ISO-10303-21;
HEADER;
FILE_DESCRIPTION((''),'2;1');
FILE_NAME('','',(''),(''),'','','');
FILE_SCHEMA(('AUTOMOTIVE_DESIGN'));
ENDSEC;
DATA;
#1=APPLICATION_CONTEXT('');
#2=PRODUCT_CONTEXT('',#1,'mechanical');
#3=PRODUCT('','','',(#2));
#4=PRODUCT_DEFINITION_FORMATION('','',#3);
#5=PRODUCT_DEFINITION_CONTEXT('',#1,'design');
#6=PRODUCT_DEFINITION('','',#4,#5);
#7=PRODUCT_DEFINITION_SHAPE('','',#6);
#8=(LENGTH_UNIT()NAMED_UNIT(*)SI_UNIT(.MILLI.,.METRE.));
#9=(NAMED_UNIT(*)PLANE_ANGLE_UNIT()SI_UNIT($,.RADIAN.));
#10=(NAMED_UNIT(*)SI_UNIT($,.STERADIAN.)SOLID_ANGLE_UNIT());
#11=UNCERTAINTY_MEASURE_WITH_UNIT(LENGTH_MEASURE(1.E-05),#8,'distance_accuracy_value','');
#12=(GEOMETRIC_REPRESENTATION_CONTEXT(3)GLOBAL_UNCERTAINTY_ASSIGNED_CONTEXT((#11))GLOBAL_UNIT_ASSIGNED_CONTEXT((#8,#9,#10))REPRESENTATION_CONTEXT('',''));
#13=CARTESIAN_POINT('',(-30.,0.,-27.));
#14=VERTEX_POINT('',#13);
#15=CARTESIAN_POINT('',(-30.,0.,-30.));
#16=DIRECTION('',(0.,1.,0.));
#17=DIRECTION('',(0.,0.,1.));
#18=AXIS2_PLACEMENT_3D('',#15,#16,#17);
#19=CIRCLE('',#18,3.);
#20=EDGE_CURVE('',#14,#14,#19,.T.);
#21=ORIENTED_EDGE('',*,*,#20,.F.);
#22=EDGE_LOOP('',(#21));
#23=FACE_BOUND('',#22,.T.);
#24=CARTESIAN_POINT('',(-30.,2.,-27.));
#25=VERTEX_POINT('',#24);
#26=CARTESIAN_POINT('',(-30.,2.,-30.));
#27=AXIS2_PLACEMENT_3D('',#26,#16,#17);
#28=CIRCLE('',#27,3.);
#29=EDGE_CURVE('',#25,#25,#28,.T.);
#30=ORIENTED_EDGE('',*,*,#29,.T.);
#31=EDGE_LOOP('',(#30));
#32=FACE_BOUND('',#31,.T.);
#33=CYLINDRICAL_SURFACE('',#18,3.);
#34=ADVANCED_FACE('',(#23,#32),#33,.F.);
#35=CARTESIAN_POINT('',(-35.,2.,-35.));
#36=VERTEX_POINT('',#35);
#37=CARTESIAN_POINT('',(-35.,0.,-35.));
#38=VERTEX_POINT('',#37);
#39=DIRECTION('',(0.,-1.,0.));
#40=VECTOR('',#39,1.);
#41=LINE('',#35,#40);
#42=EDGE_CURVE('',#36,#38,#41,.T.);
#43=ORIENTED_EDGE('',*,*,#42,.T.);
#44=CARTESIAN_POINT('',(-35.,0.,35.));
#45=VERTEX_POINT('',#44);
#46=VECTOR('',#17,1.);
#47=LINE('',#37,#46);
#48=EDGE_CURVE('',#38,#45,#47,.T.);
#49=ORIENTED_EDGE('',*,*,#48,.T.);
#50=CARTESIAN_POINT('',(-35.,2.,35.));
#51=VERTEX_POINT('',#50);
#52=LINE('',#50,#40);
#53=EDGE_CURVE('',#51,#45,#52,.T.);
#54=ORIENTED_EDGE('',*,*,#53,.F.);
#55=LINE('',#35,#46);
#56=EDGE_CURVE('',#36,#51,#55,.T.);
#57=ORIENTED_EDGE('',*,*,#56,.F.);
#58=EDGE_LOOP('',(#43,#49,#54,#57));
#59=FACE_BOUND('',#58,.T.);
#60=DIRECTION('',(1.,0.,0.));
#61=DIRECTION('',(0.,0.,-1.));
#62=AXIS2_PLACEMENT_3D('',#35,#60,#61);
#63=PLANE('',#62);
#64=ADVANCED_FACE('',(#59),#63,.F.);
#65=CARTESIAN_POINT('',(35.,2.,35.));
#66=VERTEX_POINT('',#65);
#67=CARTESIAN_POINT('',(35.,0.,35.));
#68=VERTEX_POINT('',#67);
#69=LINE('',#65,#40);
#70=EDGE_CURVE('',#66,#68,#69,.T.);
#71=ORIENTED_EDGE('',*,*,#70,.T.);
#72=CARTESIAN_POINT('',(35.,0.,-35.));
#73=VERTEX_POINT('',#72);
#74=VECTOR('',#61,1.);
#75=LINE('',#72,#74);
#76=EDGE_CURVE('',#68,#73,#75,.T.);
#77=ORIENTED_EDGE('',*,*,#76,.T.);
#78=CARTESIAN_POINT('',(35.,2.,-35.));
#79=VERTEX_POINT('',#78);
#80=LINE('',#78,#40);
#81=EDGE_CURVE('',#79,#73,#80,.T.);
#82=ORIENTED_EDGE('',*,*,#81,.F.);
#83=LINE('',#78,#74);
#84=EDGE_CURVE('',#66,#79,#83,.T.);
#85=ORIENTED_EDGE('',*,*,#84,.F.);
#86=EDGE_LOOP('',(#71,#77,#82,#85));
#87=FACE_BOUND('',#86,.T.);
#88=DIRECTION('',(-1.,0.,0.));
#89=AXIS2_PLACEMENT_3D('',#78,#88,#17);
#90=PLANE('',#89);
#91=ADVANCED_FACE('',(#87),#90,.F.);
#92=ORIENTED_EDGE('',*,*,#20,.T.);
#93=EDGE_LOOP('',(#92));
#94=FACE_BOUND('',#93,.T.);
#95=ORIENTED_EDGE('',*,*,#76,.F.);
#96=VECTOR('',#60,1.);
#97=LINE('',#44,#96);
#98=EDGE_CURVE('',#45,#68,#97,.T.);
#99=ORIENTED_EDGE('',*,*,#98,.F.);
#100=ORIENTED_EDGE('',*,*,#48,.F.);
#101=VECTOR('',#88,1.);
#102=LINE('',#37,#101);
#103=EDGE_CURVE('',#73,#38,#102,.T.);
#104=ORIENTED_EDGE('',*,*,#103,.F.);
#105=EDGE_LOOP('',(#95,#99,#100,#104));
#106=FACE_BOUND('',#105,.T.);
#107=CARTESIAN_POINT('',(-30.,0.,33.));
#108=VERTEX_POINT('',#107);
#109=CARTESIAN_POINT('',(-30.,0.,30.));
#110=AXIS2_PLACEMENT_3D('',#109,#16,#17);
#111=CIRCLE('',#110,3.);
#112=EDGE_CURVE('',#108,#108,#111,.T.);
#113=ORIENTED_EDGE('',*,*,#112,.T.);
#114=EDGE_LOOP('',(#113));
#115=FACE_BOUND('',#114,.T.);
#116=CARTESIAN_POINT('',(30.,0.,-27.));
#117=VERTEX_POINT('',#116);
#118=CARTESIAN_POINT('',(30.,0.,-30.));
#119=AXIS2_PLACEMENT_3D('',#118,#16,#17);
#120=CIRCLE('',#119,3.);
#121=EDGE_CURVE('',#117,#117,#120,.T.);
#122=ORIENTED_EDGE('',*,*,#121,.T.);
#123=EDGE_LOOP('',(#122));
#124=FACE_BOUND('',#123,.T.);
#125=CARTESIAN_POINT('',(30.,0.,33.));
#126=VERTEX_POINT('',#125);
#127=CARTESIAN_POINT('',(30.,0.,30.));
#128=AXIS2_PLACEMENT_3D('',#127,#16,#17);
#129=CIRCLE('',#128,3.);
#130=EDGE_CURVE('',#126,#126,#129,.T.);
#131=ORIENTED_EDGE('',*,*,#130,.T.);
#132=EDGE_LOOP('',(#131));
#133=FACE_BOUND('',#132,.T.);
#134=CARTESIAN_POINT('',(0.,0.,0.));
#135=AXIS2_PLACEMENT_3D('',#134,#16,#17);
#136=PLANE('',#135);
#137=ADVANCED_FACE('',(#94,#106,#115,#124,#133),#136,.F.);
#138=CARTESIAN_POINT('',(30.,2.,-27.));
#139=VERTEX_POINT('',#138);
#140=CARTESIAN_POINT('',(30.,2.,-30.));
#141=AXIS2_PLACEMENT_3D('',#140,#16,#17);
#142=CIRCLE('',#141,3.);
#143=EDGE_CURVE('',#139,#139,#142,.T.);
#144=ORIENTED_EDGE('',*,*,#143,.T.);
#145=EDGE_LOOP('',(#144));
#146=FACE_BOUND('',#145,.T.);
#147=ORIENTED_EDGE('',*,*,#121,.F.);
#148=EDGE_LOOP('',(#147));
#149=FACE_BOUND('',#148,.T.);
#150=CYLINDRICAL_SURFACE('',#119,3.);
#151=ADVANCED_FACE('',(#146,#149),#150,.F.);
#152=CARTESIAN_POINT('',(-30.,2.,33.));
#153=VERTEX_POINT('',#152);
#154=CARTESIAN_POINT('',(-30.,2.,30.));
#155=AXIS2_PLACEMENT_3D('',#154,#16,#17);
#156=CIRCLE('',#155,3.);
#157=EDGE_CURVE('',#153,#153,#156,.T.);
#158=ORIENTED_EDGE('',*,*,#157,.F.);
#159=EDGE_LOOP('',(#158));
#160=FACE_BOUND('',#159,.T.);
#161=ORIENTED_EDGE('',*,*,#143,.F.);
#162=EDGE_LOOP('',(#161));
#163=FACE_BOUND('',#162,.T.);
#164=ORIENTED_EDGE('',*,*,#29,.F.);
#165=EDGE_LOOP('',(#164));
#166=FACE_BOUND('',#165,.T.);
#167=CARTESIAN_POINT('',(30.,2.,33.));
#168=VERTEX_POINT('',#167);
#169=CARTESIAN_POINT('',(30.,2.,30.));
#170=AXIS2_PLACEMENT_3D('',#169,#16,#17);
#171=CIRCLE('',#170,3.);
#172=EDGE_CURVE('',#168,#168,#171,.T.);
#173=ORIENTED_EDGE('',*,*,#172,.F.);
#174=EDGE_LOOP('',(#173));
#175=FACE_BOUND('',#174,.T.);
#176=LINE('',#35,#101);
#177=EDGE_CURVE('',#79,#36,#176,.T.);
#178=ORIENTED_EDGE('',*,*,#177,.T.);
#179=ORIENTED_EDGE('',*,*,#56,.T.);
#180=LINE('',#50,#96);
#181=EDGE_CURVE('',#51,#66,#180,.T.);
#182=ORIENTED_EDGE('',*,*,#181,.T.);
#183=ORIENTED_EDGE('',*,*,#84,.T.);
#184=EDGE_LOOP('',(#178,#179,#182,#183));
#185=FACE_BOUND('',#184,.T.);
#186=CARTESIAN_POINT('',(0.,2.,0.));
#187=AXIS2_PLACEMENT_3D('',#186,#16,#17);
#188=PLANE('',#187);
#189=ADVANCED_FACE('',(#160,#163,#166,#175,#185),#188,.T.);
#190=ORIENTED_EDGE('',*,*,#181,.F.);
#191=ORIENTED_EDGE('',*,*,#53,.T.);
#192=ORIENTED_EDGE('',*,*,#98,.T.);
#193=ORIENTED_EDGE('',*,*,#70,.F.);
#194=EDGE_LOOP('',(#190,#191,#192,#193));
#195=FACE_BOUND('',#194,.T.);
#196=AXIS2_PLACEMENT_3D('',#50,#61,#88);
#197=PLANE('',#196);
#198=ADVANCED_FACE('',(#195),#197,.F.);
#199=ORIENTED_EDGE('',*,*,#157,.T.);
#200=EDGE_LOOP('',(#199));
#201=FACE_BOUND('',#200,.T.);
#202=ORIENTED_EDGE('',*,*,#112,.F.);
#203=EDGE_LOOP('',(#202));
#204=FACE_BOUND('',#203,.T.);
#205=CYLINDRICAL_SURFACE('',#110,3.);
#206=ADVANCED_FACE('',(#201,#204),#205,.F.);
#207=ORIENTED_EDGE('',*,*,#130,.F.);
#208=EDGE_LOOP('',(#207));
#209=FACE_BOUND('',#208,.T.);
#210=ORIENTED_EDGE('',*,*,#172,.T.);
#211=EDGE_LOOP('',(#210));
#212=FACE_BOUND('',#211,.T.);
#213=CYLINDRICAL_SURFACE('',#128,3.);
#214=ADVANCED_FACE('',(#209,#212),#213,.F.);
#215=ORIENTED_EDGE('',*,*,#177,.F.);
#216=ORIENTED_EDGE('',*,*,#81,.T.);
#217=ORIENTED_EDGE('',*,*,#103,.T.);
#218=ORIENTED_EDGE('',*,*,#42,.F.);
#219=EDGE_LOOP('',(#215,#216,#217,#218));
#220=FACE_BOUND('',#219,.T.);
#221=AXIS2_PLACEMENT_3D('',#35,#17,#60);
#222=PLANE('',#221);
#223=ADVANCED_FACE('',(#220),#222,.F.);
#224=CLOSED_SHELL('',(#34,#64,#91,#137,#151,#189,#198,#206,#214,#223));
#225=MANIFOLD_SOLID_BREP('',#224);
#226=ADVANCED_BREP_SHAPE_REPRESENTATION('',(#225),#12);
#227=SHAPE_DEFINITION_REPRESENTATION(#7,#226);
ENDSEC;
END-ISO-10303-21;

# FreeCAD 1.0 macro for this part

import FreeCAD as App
import Part
import Sketcher
from FreeCAD import Vector
Q = App.Units.Quantity

doc = App.newDocument("Part")
body = doc.addObject("PartDesign::Body", "Body")

sketch1 = doc.addObject("Sketcher::SketchObject", "Sketch")
body.addObject(sketch1)
sketch1.AttachmentSupport = (doc.XZ_Plane, [""])
sketch1.MapMode = "FlatFace"
sketch1.addGeometry([
    Part.LineSegment(Vector(-35, -35, 0), Vector(-35, 35, 0)),
    Part.LineSegment(Vector(-35, 35, 0), Vector(35, 35, 0)),
    Part.LineSegment(Vector(35, 35, 0), Vector(35, -35, 0)),
    Part.LineSegment(Vector(35, -35, 0), Vector(-35, -35, 0)),
], False)
sketch1.addConstraint([
    Sketcher.Constraint("Coincident", 0, 2, 1, 1),
    Sketcher.Constraint("Coincident", 1, 2, 2, 1),
    Sketcher.Constraint("Coincident", 2, 2, 3, 1),
    Sketcher.Constraint("Coincident", 3, 2, 0, 1),
    Sketcher.Constraint("Vertical", 0),
    Sketcher.Constraint("Horizontal", 1),
    Sketcher.Constraint("Vertical", 2),
    Sketcher.Constraint("Horizontal", 3),
    Sketcher.Constraint("Symmetric", 0, 2, 2, 2, -1, 1),
    Sketcher.Constraint("Equal", 3, 0),
    Sketcher.Constraint("DistanceX", 1, 1, 1, 2, Q("70 mm")),
])
pad1 = doc.addObject("PartDesign::Pad", "Pad")
body.addObject(pad1)
pad1.Profile = sketch1
pad1.Length = 2
pad1.Reversed = True

sketch2 = doc.addObject("Sketcher::SketchObject", "Sketch001")
body.addObject(sketch2)
sketch2.AttachmentSupport = (doc.XZ_Plane, [""])
sketch2.MapMode = "FlatFace"
sketch2.AttachmentOffset = App.Placement(Vector(0, 0, -2), App.Rotation())
sketch2.addGeometry([
    Part.Circle(Vector(-30, -30, 0), Vector(0, 0, 1), 3),
    Part.Circle(Vector(30, -30, 0), Vector(0, 0, 1), 3),
    Part.Circle(Vector(-30, 30, 0), Vector(0, 0, 1), 3),
    Part.Circle(Vector(30, 30, 0), Vector(0, 0, 1), 3),
], False)
sketch2.addConstraint([
    Sketcher.Constraint("Equal", 0, 1),
    Sketcher.Constraint("Equal", 1, 2),
    Sketcher.Constraint("Equal", 2, 3),
    Sketcher.Constraint("Symmetric", 1, 3, 2, 3, -1, 1),
    Sketcher.Constraint("Symmetric", 0, 3, 3, 3, -1, 1),
    Sketcher.Constraint("Symmetric", 0, 3, 1, 3, -2),
    Sketcher.Constraint("Diameter", 0, Q("6 mm")),
    Sketcher.Constraint("DistanceX", 0, 3, -1, 1, Q("30 mm")),
    Sketcher.Constraint("DistanceY", 0, 3, -1, 1, Q("30 mm")),
])
pocket1 = doc.addObject("PartDesign::Pocket", "Pocket")
body.addObject(pocket1)
pocket1.Profile = sketch2
pocket1.Type = "ThroughAll"
pocket1.Reversed = True

doc.recompute()
